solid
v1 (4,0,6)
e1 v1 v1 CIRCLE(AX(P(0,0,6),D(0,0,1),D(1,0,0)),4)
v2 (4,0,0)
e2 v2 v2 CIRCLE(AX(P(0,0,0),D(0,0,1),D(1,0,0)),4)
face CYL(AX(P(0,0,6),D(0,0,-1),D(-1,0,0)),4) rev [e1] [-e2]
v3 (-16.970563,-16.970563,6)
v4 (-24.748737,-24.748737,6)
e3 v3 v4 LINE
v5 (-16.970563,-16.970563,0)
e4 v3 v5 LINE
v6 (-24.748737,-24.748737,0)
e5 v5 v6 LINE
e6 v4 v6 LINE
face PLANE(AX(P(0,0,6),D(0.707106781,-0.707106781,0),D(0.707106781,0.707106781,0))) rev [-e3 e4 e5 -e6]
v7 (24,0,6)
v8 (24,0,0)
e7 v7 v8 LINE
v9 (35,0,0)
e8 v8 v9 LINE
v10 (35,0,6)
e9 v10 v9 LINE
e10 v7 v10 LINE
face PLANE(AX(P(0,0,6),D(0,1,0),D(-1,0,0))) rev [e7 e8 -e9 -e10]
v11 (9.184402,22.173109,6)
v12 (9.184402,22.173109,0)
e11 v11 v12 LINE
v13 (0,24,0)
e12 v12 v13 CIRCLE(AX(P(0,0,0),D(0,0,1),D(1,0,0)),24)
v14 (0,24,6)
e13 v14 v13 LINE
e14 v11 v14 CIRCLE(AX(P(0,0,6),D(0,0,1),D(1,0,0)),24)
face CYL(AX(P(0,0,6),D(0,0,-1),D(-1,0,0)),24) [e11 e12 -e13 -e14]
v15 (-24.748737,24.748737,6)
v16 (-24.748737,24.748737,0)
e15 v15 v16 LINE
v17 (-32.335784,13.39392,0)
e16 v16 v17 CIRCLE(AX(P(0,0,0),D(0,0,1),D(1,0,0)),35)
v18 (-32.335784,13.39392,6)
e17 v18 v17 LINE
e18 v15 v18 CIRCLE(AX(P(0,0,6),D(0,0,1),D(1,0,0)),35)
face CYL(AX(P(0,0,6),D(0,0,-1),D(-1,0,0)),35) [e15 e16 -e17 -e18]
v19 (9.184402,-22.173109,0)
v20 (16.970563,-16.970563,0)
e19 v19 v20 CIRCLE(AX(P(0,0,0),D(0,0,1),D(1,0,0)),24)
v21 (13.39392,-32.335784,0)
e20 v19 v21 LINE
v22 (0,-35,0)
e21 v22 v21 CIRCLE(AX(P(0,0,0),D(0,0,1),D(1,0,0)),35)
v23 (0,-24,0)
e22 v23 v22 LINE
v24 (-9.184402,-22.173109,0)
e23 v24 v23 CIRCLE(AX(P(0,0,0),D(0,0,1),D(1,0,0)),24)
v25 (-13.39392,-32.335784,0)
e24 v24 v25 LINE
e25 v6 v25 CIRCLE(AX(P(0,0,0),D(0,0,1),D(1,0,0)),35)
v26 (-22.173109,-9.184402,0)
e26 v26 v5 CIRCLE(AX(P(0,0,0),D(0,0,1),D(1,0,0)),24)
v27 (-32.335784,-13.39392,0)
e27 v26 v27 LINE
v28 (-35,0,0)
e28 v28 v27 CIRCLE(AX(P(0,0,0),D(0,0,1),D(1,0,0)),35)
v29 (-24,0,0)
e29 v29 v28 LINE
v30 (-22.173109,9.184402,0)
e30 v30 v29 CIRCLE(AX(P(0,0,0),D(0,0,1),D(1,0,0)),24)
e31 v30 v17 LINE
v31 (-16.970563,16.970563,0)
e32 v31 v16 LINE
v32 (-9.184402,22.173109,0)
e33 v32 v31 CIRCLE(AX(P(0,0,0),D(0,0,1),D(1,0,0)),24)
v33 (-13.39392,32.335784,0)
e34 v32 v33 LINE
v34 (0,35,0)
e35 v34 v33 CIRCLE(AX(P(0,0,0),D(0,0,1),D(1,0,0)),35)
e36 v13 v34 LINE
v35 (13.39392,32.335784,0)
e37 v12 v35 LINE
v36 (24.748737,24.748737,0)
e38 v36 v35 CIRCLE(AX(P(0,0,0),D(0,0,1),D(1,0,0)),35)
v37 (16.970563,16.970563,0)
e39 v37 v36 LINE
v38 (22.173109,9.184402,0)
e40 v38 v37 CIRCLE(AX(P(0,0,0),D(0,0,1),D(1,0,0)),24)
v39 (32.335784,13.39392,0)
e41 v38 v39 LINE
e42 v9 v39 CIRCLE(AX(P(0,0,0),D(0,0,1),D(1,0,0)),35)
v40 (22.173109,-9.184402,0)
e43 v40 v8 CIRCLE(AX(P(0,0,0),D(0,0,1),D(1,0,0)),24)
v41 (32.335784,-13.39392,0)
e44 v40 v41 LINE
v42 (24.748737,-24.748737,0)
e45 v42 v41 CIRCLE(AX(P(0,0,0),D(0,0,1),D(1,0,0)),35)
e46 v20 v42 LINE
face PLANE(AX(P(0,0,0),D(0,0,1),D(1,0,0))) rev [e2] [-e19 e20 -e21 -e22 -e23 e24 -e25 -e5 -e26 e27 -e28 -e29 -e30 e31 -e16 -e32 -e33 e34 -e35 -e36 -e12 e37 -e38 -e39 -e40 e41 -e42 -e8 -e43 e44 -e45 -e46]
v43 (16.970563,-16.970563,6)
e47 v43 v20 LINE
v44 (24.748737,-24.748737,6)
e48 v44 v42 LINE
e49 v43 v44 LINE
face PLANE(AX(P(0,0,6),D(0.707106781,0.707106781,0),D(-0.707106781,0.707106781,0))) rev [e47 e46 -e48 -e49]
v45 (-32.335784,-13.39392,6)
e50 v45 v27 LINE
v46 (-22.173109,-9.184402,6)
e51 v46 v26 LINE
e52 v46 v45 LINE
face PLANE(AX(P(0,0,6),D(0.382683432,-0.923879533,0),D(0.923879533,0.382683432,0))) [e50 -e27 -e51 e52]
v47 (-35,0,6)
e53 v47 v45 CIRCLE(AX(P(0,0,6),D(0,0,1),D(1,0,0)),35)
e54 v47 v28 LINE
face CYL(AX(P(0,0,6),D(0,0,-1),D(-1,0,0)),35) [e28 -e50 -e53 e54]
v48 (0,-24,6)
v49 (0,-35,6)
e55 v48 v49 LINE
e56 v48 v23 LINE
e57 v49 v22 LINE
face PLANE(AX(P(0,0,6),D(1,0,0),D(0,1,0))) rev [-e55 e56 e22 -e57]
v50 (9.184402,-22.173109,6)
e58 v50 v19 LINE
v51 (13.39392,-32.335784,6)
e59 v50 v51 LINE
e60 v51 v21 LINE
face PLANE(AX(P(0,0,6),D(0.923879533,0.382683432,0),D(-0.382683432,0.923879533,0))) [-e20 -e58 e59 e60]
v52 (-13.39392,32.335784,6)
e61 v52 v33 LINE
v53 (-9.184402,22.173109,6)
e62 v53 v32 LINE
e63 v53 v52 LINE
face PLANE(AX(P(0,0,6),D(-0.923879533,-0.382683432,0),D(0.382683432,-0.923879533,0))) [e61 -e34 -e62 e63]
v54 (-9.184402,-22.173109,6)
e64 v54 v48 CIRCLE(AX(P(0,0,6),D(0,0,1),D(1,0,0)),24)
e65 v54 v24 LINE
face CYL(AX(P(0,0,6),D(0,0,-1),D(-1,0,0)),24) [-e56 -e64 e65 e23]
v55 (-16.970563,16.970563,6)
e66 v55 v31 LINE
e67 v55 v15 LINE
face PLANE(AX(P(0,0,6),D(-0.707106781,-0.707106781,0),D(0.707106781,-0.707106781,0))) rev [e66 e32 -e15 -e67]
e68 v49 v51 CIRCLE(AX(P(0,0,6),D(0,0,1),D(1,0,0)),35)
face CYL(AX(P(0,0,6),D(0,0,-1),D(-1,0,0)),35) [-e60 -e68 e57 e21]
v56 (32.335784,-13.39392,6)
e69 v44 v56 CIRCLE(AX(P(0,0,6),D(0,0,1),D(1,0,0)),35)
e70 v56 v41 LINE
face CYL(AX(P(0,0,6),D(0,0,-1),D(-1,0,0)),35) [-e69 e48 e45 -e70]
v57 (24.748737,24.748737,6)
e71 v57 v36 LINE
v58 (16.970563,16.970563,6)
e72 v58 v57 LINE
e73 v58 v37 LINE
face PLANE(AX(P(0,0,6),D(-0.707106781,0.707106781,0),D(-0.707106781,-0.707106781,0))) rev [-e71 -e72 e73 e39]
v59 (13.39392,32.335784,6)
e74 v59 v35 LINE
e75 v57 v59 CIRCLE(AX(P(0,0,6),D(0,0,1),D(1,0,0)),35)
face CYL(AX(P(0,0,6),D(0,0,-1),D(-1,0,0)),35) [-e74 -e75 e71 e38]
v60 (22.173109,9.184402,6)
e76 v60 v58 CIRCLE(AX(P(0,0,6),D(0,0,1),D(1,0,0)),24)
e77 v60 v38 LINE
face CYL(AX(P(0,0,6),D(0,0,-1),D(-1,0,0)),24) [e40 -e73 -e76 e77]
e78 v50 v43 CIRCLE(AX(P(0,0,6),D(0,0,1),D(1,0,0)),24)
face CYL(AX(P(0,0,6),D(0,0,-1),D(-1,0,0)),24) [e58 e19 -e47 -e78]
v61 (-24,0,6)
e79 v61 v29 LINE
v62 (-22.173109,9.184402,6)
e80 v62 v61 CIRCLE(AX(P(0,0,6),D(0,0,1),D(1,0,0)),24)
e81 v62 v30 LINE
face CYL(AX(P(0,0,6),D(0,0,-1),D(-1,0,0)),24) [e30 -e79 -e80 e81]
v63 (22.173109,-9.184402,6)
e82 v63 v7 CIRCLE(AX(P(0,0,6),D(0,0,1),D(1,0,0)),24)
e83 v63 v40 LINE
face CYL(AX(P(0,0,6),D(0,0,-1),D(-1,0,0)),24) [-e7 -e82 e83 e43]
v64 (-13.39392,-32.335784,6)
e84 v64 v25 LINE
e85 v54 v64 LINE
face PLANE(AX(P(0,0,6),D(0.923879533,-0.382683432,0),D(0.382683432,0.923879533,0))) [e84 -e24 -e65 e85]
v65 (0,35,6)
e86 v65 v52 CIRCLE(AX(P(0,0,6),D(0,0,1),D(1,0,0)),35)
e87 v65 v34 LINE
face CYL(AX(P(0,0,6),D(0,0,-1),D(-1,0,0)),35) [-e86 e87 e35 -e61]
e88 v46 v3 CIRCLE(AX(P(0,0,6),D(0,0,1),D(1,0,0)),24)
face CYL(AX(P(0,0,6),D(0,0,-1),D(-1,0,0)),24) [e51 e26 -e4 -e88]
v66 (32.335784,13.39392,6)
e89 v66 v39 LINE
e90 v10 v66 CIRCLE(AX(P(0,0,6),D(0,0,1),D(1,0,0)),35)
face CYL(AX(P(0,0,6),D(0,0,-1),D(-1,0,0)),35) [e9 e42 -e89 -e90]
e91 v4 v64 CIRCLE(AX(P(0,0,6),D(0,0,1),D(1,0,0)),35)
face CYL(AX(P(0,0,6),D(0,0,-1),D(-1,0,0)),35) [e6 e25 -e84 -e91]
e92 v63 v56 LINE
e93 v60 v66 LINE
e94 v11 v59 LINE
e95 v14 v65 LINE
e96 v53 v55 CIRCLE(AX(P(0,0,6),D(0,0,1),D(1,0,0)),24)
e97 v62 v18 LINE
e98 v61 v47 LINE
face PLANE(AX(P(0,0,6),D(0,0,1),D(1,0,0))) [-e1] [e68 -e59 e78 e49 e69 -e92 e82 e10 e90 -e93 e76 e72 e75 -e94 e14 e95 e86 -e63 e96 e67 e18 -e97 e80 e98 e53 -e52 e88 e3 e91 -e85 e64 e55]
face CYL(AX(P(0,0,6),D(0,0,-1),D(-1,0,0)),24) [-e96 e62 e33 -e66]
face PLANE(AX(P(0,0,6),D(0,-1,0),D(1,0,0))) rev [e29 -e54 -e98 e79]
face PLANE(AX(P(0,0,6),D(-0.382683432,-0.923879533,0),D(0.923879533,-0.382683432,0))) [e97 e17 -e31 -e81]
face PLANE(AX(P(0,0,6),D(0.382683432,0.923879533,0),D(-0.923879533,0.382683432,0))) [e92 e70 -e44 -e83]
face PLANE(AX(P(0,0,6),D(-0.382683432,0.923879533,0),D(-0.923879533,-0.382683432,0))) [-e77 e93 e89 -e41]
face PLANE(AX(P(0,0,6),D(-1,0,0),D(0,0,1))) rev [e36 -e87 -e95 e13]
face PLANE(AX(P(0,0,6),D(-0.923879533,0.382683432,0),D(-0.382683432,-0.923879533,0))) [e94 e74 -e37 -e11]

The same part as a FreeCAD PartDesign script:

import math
import FreeCAD as App
import Part
import Sketcher
from FreeCAD import Vector
Q = App.Units.Quantity

doc = App.newDocument("Part")
body = doc.addObject("PartDesign::Body", "Body")

# Sketch on XY plane
sketch1 = body.newObject("Sketcher::SketchObject", "Sketch")
sketch1.AttachmentSupport = (doc.getObject("XY_Plane"), [""])
sketch1.MapMode = "FlatFace"
sketch1.addGeometry(Part.LineSegment(Vector(-13.4, 32.3, 0), Vector(-9.2, 22.2, 0)), False)
sketch1.addGeometry(Part.ArcOfCircle(Part.Circle(Vector(0, 0, 0), Vector(0, 0, 1), 24), math.radians(113), math.radians(135)), False)
sketch1.addGeometry(Part.LineSegment(Vector(-17, 17, 0), Vector(-24.7, 24.7, 0)), False)
sketch1.addGeometry(Part.ArcOfCircle(Part.Circle(Vector(0, 0, 0), Vector(0, 0, 1), 35), math.radians(135), math.radians(158)), False)
sketch1.addGeometry(Part.LineSegment(Vector(-32.3, 13.4, 0), Vector(-22.2, 9.2, 0)), False)
sketch1.addGeometry(Part.ArcOfCircle(Part.Circle(Vector(0, 0, 0), Vector(0, 0, 1), 24), math.radians(157), math.radians(180)), False)
sketch1.addGeometry(Part.LineSegment(Vector(-24, 0, 0), Vector(-35, 0, 0)), False)
sketch1.addGeometry(Part.ArcOfCircle(Part.Circle(Vector(0, 0, 0), Vector(0, 0, 1), 35), math.radians(-180), math.radians(-158)), False)
sketch1.addGeometry(Part.LineSegment(Vector(-32.3, -13.4, 0), Vector(-22.2, -9.2, 0)), False)
sketch1.addGeometry(Part.ArcOfCircle(Part.Circle(Vector(0, 0, 0), Vector(0, 0, 1), 24), math.radians(-157), math.radians(-135)), False)
sketch1.addGeometry(Part.LineSegment(Vector(-17, -17, 0), Vector(-24.7, -24.7, 0)), False)
sketch1.addGeometry(Part.ArcOfCircle(Part.Circle(Vector(0, 0, 0), Vector(0, 0, 1), 35), math.radians(-135), math.radians(-112)), False)
sketch1.addGeometry(Part.LineSegment(Vector(-13.4, -32.3, 0), Vector(-9.2, -22.2, 0)), False)
sketch1.addGeometry(Part.ArcOfCircle(Part.Circle(Vector(0, 0, 0), Vector(0, 0, 1), 24), math.radians(-113), math.radians(-90)), False)
sketch1.addGeometry(Part.LineSegment(Vector(0, -24, 0), Vector(0, -35, 0)), False)
sketch1.addGeometry(Part.ArcOfCircle(Part.Circle(Vector(0, 0, 0), Vector(0, 0, 1), 35), math.radians(-90), math.radians(-68)), False)
sketch1.addGeometry(Part.LineSegment(Vector(13.4, -32.3, 0), Vector(9.2, -22.2, 0)), False)
sketch1.addGeometry(Part.ArcOfCircle(Part.Circle(Vector(0, 0, 0), Vector(0, 0, 1), 24), math.radians(-67), math.radians(-45)), False)
sketch1.addGeometry(Part.LineSegment(Vector(17, -17, 0), Vector(24.7, -24.7, 0)), False)
sketch1.addGeometry(Part.ArcOfCircle(Part.Circle(Vector(0, 0, 0), Vector(0, 0, 1), 35), math.radians(-45), math.radians(-22)), False)
sketch1.addGeometry(Part.LineSegment(Vector(32.3, -13.4, 0), Vector(22.2, -9.2, 0)), False)
sketch1.addGeometry(Part.ArcOfCircle(Part.Circle(Vector(0, 0, 0), Vector(0, 0, 1), 24), math.radians(-23), math.radians(0)), False)
sketch1.addGeometry(Part.LineSegment(Vector(24, 0, 0), Vector(35, 0, 0)), False)
sketch1.addGeometry(Part.ArcOfCircle(Part.Circle(Vector(0, 0, 0), Vector(0, 0, 1), 35), math.radians(0), math.radians(22)), False)
sketch1.addGeometry(Part.LineSegment(Vector(32.3, 13.4, 0), Vector(22.2, 9.2, 0)), False)
sketch1.addGeometry(Part.ArcOfCircle(Part.Circle(Vector(0, 0, 0), Vector(0, 0, 1), 24), math.radians(23), math.radians(45)), False)
sketch1.addGeometry(Part.LineSegment(Vector(17, 17, 0), Vector(24.7, 24.7, 0)), False)
sketch1.addGeometry(Part.ArcOfCircle(Part.Circle(Vector(0, 0, 0), Vector(0, 0, 1), 35), math.radians(45), math.radians(68)), False)
sketch1.addGeometry(Part.LineSegment(Vector(13.4, 32.3, 0), Vector(9.2, 22.2, 0)), False)
sketch1.addGeometry(Part.ArcOfCircle(Part.Circle(Vector(0, 0, 0), Vector(0, 0, 1), 24), math.radians(67), math.radians(90)), False)
sketch1.addGeometry(Part.LineSegment(Vector(0, 24, 0), Vector(0, 35, 0)), False)
sketch1.addGeometry(Part.ArcOfCircle(Part.Circle(Vector(0, 0, 0), Vector(0, 0, 1), 35), math.radians(90), math.radians(112)), False)
sketch1.addGeometry(Part.Circle(Vector(0, 0, 0), Vector(0, 0, 1), 4), False)
sketch1.addConstraint(Sketcher.Constraint("Coincident", 0, 2, 1, 1))
sketch1.addConstraint(Sketcher.Constraint("Coincident", 1, 2, 2, 1))
sketch1.addConstraint(Sketcher.Constraint("Coincident", 2, 2, 3, 1))
sketch1.addConstraint(Sketcher.Constraint("Coincident", 3, 2, 4, 1))
sketch1.addConstraint(Sketcher.Constraint("Coincident", 4, 2, 5, 1))
sketch1.addConstraint(Sketcher.Constraint("Coincident", 5, 2, 6, 1))
sketch1.addConstraint(Sketcher.Constraint("Coincident", 6, 2, 7, 1))
sketch1.addConstraint(Sketcher.Constraint("Coincident", 7, 2, 8, 1))
sketch1.addConstraint(Sketcher.Constraint("Coincident", 8, 2, 9, 1))
sketch1.addConstraint(Sketcher.Constraint("Coincident", 9, 2, 10, 1))
sketch1.addConstraint(Sketcher.Constraint("Coincident", 10, 2, 11, 1))
sketch1.addConstraint(Sketcher.Constraint("Coincident", 11, 2, 12, 1))
sketch1.addConstraint(Sketcher.Constraint("Coincident", 12, 2, 13, 1))
sketch1.addConstraint(Sketcher.Constraint("Coincident", 13, 2, 14, 1))
sketch1.addConstraint(Sketcher.Constraint("Coincident", 14, 2, 15, 1))
sketch1.addConstraint(Sketcher.Constraint("Coincident", 15, 2, 16, 1))
sketch1.addConstraint(Sketcher.Constraint("Coincident", 16, 2, 17, 1))
sketch1.addConstraint(Sketcher.Constraint("Coincident", 17, 2, 18, 1))
sketch1.addConstraint(Sketcher.Constraint("Coincident", 18, 2, 19, 1))
sketch1.addConstraint(Sketcher.Constraint("Coincident", 19, 2, 20, 1))
sketch1.addConstraint(Sketcher.Constraint("Coincident", 20, 2, 21, 1))
sketch1.addConstraint(Sketcher.Constraint("Coincident", 21, 2, 22, 1))
sketch1.addConstraint(Sketcher.Constraint("Coincident", 22, 2, 23, 1))
sketch1.addConstraint(Sketcher.Constraint("Coincident", 23, 2, 24, 1))
sketch1.addConstraint(Sketcher.Constraint("Coincident", 24, 2, 25, 1))
sketch1.addConstraint(Sketcher.Constraint("Coincident", 25, 2, 26, 1))
sketch1.addConstraint(Sketcher.Constraint("Coincident", 26, 2, 27, 1))
sketch1.addConstraint(Sketcher.Constraint("Coincident", 27, 2, 28, 1))
sketch1.addConstraint(Sketcher.Constraint("Coincident", 28, 2, 29, 1))
sketch1.addConstraint(Sketcher.Constraint("Coincident", 29, 2, 30, 1))
sketch1.addConstraint(Sketcher.Constraint("Coincident", 30, 2, 31, 1))
sketch1.addConstraint(Sketcher.Constraint("Coincident", 31, 2, 0, 1))
sketch1.addConstraint(Sketcher.Constraint("Horizontal", 6))
sketch1.addConstraint(Sketcher.Constraint("Vertical", 14))
sketch1.addConstraint(Sketcher.Constraint("Horizontal", 22))
sketch1.addConstraint(Sketcher.Constraint("Vertical", 30))
sketch1.addConstraint(Sketcher.Constraint("Coincident", 1, 3, -1, 1))
sketch1.addConstraint(Sketcher.Constraint("Coincident", 3, 3, -1, 1))
sketch1.addConstraint(Sketcher.Constraint("Coincident", 5, 3, -1, 1))
sketch1.addConstraint(Sketcher.Constraint("Coincident", 7, 3, -1, 1))
sketch1.addConstraint(Sketcher.Constraint("Coincident", 9, 3, -1, 1))
sketch1.addConstraint(Sketcher.Constraint("Coincident", 11, 3, -1, 1))
sketch1.addConstraint(Sketcher.Constraint("Coincident", 13, 3, -1, 1))
sketch1.addConstraint(Sketcher.Constraint("Coincident", 15, 3, -1, 1))
sketch1.addConstraint(Sketcher.Constraint("Coincident", 17, 3, -1, 1))
sketch1.addConstraint(Sketcher.Constraint("Coincident", 19, 3, -1, 1))
sketch1.addConstraint(Sketcher.Constraint("Coincident", 21, 3, -1, 1))
sketch1.addConstraint(Sketcher.Constraint("Coincident", 23, 3, -1, 1))
sketch1.addConstraint(Sketcher.Constraint("Coincident", 25, 3, -1, 1))
sketch1.addConstraint(Sketcher.Constraint("Coincident", 27, 3, -1, 1))
sketch1.addConstraint(Sketcher.Constraint("Coincident", 29, 3, -1, 1))
sketch1.addConstraint(Sketcher.Constraint("Coincident", 31, 3, -1, 1))
sketch1.addConstraint(Sketcher.Constraint("Coincident", 32, 3, -1, 1))
sketch1.addConstraint(Sketcher.Constraint("Equal", 1, 5))
sketch1.addConstraint(Sketcher.Constraint("Equal", 3, 7))
sketch1.addConstraint(Sketcher.Constraint("Equal", 5, 9))
sketch1.addConstraint(Sketcher.Constraint("Equal", 7, 11))
sketch1.addConstraint(Sketcher.Constraint("Equal", 9, 13))
sketch1.addConstraint(Sketcher.Constraint("Equal", 11, 15))
sketch1.addConstraint(Sketcher.Constraint("Equal", 13, 17))
sketch1.addConstraint(Sketcher.Constraint("Equal", 15, 19))
sketch1.addConstraint(Sketcher.Constraint("Equal", 17, 21))
sketch1.addConstraint(Sketcher.Constraint("Equal", 19, 23))
sketch1.addConstraint(Sketcher.Constraint("Equal", 21, 25))
sketch1.addConstraint(Sketcher.Constraint("Equal", 23, 27))
sketch1.addConstraint(Sketcher.Constraint("Equal", 25, 29))
sketch1.addConstraint(Sketcher.Constraint("Equal", 27, 31))
sketch1.addConstraint(Sketcher.Constraint("PointOnObject", 5, 2, -1))
sketch1.addConstraint(Sketcher.Constraint("PointOnObject", 13, 2, -2))
sketch1.addConstraint(Sketcher.Constraint("PointOnObject", 21, 2, -1))
sketch1.addConstraint(Sketcher.Constraint("PointOnObject", 29, 2, -2))
sketch1.addConstraint(Sketcher.Constraint("Perpendicular", 0, 8))
sketch1.addConstraint(Sketcher.Constraint("Perpendicular", 2, 10))
sketch1.addConstraint(Sketcher.Constraint("Perpendicular", 4, 12))
sketch1.addConstraint(Sketcher.Constraint("Perpendicular", 8, 16))
sketch1.addConstraint(Sketcher.Constraint("Perpendicular", 10, 18))
sketch1.addConstraint(Sketcher.Constraint("Perpendicular", 12, 20))
sketch1.addConstraint(Sketcher.Constraint("Perpendicular", 16, 24))
sketch1.addConstraint(Sketcher.Constraint("Perpendicular", 18, 26))
sketch1.addConstraint(Sketcher.Constraint("Perpendicular", 20, 28))
sketch1.addConstraint(Sketcher.Constraint("Horizontal", 11, 2, 15, 2))
sketch1.addConstraint(Sketcher.Constraint("Horizontal", 12, 2, 16, 2))
sketch1.addConstraint(Sketcher.Constraint("Horizontal", 9, 2, 17, 2))
sketch1.addConstraint(Sketcher.Constraint("Horizontal", 10, 2, 18, 2))
sketch1.addConstraint(Sketcher.Constraint("Horizontal", 7, 2, 19, 2))
sketch1.addConstraint(Sketcher.Constraint("Horizontal", 3, 2, 23, 2))
sketch1.addConstraint(Sketcher.Constraint("Horizontal", 1, 2, 25, 2))
sketch1.addConstraint(Sketcher.Constraint("Horizontal", 0, 2, 28, 2))
sketch1.addConstraint(Sketcher.Constraint("Vertical", 3, 2, 7, 2))
sketch1.addConstraint(Sketcher.Constraint("Vertical", 1, 2, 9, 2))
sketch1.addConstraint(Sketcher.Constraint("Vertical", 0, 2, 12, 2))
sketch1.addConstraint(Sketcher.Constraint("Diameter", 32, Q("8 mm")))
sketch1.addConstraint(Sketcher.Constraint("Radius", 1, Q("24 mm")))
sketch1.addConstraint(Sketcher.Constraint("Radius", 3, Q("35 mm")))
sketch1.addConstraint(Sketcher.Constraint("Angle", 0, Q("-67.5 deg")))
sketch1.addConstraint(Sketcher.Constraint("DistanceY", -1, 1, 0, 2, Q("22.173109 mm")))
sketch1.addConstraint(Sketcher.Constraint("DistanceY", -1, 1, 3, 2, Q("13.39392 mm")))
sketch1.addConstraint(Sketcher.Constraint("DistanceX", 1, 2, 0, 2, Q("7.78616 mm")))
pad1 = body.newObject("PartDesign::Pad", "Pad")
pad1.Profile = sketch1
pad1.Length = 6

doc.recompute()
